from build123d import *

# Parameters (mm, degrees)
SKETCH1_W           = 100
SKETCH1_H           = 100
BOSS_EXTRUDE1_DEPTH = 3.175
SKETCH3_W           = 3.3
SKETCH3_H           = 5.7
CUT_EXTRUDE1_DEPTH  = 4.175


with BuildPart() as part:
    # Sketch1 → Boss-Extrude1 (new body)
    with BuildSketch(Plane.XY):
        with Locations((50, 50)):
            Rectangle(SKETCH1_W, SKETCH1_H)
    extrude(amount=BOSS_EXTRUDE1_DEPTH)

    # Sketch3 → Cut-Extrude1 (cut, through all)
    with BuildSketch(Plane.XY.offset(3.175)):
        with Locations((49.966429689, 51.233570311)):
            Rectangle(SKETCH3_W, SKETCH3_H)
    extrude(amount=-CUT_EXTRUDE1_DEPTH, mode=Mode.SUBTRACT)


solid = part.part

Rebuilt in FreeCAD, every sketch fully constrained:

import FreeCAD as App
import Part
import Sketcher
from FreeCAD import Vector
Q = App.Units.Quantity

doc = App.newDocument("Part")
body = doc.addObject("PartDesign::Body", "Body")

# Sketch on XY plane
sketch1 = doc.addObject("Sketcher::SketchObject", "Sketch")
body.addObject(sketch1)
sketch1.AttachmentSupport = (doc.XY_Plane, [""])
sketch1.MapMode = "FlatFace"
sketch1.addGeometry([
    Part.LineSegment(Vector(0, 100, 0), Vector(0, 0, 0)),
    Part.LineSegment(Vector(0, 0, 0), Vector(100, 0, 0)),
    Part.LineSegment(Vector(100, 0, 0), Vector(100, 100, 0)),
    Part.LineSegment(Vector(100, 100, 0), Vector(0, 100, 0)),
], False)
sketch1.addConstraint([
    Sketcher.Constraint("Coincident", 0, 2, 1, 1),
    Sketcher.Constraint("Coincident", 1, 2, 2, 1),
    Sketcher.Constraint("Coincident", 2, 2, 3, 1),
    Sketcher.Constraint("Coincident", 3, 2, 0, 1),
    Sketcher.Constraint("Vertical", 0),
    Sketcher.Constraint("Horizontal", 1),
    Sketcher.Constraint("Vertical", 2),
    Sketcher.Constraint("Horizontal", 3),
    Sketcher.Constraint("Coincident", 0, 2, -1, 1),
    Sketcher.Constraint("Equal", 3, 0),
    Sketcher.Constraint("DistanceX", 1, 1, 1, 2, Q("100 mm")),
])
pad1 = doc.addObject("PartDesign::Pad", "Pad")
body.addObject(pad1)
pad1.Profile = sketch1
pad1.Length = 3.175

# Sketch on XY plane
sketch2 = doc.addObject("Sketcher::SketchObject", "Sketch001")
body.addObject(sketch2)
sketch2.AttachmentSupport = (doc.XY_Plane, [""])
sketch2.MapMode = "FlatFace"
sketch2.AttachmentOffset = App.Placement(Vector(0, 0, 3.175), App.Rotation())
sketch2.addGeometry([
    Part.LineSegment(Vector(48.3, 54.1, 0), Vector(48.3, 48.4, 0)),
    Part.LineSegment(Vector(48.3, 48.4, 0), Vector(51.6, 48.4, 0)),
    Part.LineSegment(Vector(51.6, 48.4, 0), Vector(51.6, 54.1, 0)),
    Part.LineSegment(Vector(51.6, 54.1, 0), Vector(48.3, 54.1, 0)),
], False)
sketch2.addConstraint([
    Sketcher.Constraint("Coincident", 0, 2, 1, 1),
    Sketcher.Constraint("Coincident", 1, 2, 2, 1),
    Sketcher.Constraint("Coincident", 2, 2, 3, 1),
    Sketcher.Constraint("Coincident", 3, 2, 0, 1),
    Sketcher.Constraint("Vertical", 0),
    Sketcher.Constraint("Horizontal", 1),
    Sketcher.Constraint("Vertical", 2),
    Sketcher.Constraint("Horizontal", 3),
    Sketcher.Constraint("DistanceX", 1, 1, 1, 2, Q("3.3 mm")),
    Sketcher.Constraint("DistanceY", 0, 2, 0, 1, Q("5.7 mm")),
    Sketcher.Constraint("DistanceX", -1, 1, 0, 2, Q("48.31643 mm")),
    Sketcher.Constraint("DistanceY", -1, 1, 0, 2, Q("48.38357 mm")),
])
pocket1 = doc.addObject("PartDesign::Pocket", "Pocket")
body.addObject(pocket1)
pocket1.Profile = sketch2
pocket1.Type = "ThroughAll"

doc.recompute()
